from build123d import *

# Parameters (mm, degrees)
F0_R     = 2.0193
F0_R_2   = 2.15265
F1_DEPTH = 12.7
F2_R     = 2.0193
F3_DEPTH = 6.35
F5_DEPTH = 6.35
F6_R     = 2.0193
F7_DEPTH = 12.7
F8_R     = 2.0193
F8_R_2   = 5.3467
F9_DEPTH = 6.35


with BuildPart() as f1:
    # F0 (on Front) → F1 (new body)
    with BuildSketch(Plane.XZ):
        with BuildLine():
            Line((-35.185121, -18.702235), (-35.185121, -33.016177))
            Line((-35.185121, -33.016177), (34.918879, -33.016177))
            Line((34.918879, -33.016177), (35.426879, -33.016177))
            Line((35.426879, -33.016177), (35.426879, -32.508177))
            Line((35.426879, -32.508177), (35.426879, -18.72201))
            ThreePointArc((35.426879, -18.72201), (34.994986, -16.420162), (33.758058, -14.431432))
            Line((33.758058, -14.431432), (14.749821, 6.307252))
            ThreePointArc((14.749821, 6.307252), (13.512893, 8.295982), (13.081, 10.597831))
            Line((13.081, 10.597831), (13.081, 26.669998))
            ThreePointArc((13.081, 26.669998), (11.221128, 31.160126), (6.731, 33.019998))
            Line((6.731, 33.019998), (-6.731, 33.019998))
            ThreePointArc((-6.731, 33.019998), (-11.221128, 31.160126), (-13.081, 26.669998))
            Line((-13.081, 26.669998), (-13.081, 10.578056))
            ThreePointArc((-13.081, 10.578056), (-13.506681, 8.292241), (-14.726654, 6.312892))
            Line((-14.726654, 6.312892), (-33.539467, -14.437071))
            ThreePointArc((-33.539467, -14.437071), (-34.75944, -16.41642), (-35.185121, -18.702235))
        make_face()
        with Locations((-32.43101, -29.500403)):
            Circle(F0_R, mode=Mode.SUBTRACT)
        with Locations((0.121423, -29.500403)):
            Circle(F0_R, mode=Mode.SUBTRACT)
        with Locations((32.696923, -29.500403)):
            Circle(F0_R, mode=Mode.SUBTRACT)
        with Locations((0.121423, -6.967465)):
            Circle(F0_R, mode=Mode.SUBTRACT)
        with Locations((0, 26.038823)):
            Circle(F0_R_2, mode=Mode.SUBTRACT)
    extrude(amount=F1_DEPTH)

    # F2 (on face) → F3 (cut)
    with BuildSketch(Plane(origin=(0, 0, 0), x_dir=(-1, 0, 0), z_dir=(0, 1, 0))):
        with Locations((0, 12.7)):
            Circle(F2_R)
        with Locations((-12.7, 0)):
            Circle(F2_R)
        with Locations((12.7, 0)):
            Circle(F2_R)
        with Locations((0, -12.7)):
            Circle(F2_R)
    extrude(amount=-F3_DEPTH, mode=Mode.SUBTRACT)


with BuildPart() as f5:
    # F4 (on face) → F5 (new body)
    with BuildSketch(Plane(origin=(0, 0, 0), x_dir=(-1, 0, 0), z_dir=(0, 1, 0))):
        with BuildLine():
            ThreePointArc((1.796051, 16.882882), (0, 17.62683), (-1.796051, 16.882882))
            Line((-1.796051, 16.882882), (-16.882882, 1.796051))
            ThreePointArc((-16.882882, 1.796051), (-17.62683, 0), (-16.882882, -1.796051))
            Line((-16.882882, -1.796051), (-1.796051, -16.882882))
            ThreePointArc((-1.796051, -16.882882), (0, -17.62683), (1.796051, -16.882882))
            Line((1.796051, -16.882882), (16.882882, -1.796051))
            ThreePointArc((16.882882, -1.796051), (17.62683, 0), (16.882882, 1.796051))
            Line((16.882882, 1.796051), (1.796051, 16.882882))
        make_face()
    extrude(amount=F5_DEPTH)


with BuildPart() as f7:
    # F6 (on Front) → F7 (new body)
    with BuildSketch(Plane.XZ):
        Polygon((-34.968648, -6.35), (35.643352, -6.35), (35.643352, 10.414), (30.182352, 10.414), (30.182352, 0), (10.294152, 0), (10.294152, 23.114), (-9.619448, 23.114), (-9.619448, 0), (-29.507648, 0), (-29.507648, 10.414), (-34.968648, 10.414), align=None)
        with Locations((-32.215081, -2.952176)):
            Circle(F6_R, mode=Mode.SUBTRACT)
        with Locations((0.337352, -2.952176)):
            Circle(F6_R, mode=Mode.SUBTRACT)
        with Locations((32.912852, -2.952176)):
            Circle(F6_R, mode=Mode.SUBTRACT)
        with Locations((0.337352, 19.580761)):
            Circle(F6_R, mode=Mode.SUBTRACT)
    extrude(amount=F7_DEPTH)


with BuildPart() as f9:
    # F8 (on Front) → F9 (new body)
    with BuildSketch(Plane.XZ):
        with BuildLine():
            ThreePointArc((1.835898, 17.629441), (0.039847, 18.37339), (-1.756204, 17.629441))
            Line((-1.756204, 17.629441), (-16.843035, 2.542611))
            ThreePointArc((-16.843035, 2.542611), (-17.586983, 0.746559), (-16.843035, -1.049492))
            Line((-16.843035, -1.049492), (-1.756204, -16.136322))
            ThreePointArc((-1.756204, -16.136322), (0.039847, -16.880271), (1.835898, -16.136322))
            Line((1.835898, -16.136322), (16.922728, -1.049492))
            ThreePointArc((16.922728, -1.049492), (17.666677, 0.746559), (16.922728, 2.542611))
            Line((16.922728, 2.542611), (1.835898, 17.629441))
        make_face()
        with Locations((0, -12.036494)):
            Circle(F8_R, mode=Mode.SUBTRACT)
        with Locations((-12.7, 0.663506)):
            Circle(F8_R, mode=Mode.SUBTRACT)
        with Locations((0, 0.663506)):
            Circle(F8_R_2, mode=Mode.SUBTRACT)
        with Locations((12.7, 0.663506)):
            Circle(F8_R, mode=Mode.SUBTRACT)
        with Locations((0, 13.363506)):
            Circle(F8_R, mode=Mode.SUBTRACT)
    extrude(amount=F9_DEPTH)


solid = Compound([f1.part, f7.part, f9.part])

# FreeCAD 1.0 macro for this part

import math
import FreeCAD as App
import Part
import Sketcher

V = App.Vector
Q = App.Units.Quantity

doc = App.newDocument("Part")
body = doc.addObject("PartDesign::Body", "Body")

# Sketch on XZ plane
sketch1 = doc.addObject("Sketcher::SketchObject", "Sketch")
body.addObject(sketch1)
sketch1.AttachmentSupport = (doc.XZ_Plane, [""])
sketch1.MapMode = "FlatFace"
sketch1.addGeometry([
    Part.LineSegment(V(-35.185121, -18.702235, 0), V(-35.185121, -33.016177, 0)),  # 0
    Part.LineSegment(V(-35.185121, -33.016177, 0), V(35.426879, -33.016177, 0)),  # 1
    Part.LineSegment(V(35.426879, -33.016177, 0), V(35.426879, -18.72201, 0)),  # 2
    Part.ArcOfCircle(Part.Circle(V(29.076875, -18.722012, 0), V(0, 0, 1), 6.350004), math.radians(0.000017), math.radians(42.507093)),  # 3
    Part.LineSegment(V(33.758058, -14.431432, 0), V(14.749821, 6.307252, 0)),  # 4
    Part.ArcOfCircle(Part.Circle(V(19.431004, 10.597832, 0), V(0, 0, 1), 6.350004), math.radians(-179.999992), math.radians(-137.492907)),  # 5
    Part.LineSegment(V(13.081, 10.597831, 0), V(13.081, 26.669998, 0)),  # 6
    Part.ArcOfCircle(Part.Circle(V(6.731, 26.669998, 0), V(0, 0, 1), 6.35), math.radians(0.000002), math.radians(89.999998)),  # 7
    Part.LineSegment(V(6.731, 33.019998, 0), V(-6.731, 33.019998, 0)),  # 8
    Part.ArcOfCircle(Part.Circle(V(-6.731, 26.669998, 0), V(0, 0, 1), 6.35), math.radians(90.000002), math.radians(179.999998)),  # 9
    Part.LineSegment(V(-13.081, 26.669998, 0), V(-13.081, 10.578056, 0)),  # 10
    Part.ArcOfCircle(Part.Circle(V(-19.430991, 10.578053, 0), V(0, 0, 1), 6.349991), math.radians(-42.196851), math.radians(0.000027)),  # 11
    Part.LineSegment(V(-14.726654, 6.312892, 0), V(-33.539467, -14.437071, 0)),  # 12
    Part.ArcOfCircle(Part.Circle(V(-28.83513, -18.702232, 0), V(0, 0, 1), 6.349991), math.radians(137.803149), math.radians(180.000027)),  # 13
    Part.Circle(V(-32.43101, -29.500403, 0), V(0, 0, 1), 2.0193),  # 14
    Part.Circle(V(0.121423, -29.500403, 0), V(0, 0, 1), 2.0193),  # 15
    Part.Circle(V(0.121423, -6.967465, 0), V(0, 0, 1), 2.0193),  # 16
    Part.Circle(V(32.696923, -29.500403, 0), V(0, 0, 1), 2.0193),  # 17
    Part.Circle(V(0, 26.038823, 0), V(0, 0, 1), 2.15265),  # 18
], False)
sketch1.addConstraint([
    Sketcher.Constraint("Coincident", 0, 2, 1, 1),
    Sketcher.Constraint("Coincident", 1, 2, 2, 1),
    Sketcher.Constraint("Coincident", 2, 2, 3, 1),
    Sketcher.Constraint("Coincident", 3, 2, 4, 1),
    Sketcher.Constraint("Coincident", 4, 2, 5, 2),
    Sketcher.Constraint("Coincident", 5, 1, 6, 1),
    Sketcher.Constraint("Coincident", 6, 2, 7, 1),
    Sketcher.Constraint("Coincident", 7, 2, 8, 1),
    Sketcher.Constraint("Coincident", 8, 2, 9, 1),
    Sketcher.Constraint("Coincident", 9, 2, 10, 1),
    Sketcher.Constraint("Coincident", 10, 2, 11, 2),
    Sketcher.Constraint("Coincident", 11, 1, 12, 1),
    Sketcher.Constraint("Coincident", 12, 2, 13, 1),
    Sketcher.Constraint("Coincident", 13, 2, 0, 1),
    Sketcher.Constraint("Vertical", 0),
    Sketcher.Constraint("Horizontal", 1),
    Sketcher.Constraint("Vertical", 2),
    Sketcher.Constraint("Vertical", 6),
    Sketcher.Constraint("Horizontal", 8),
    Sketcher.Constraint("Vertical", 10),
    Sketcher.Constraint("PointOnObject", 18, 3, -2),
    Sketcher.Constraint("Radius", 3, Q("0.2500001 in")),
    Sketcher.Constraint("Radius", 5, Q("0.2500001 in")),
    Sketcher.Constraint("Radius", 7, Q("0.25 in")),
    Sketcher.Constraint("Radius", 9, Q("0.25 in")),
    Sketcher.Constraint("Diameter", 14, Q("0.159 in")),
    Sketcher.Constraint("Diameter", 15, Q("0.159 in")),
    Sketcher.Constraint("Diameter", 16, Q("0.159 in")),
    Sketcher.Constraint("Diameter", 17, Q("0.159 in")),
    Sketcher.Constraint("Diameter", 18, Q("0.1695 in")),
    Sketcher.Constraint("DistanceX", 1, 1, 1, 2, Q("2.78 in")),
    Sketcher.Constraint("DistanceX", 8, 2, 8, 1, Q("0.53 in")),
    Sketcher.Constraint("DistanceY", -1, 1, 7, 2, Q("1.2999999 in")),
    Sketcher.Constraint("DistanceY", -1, 1, 6, 2, Q("1.0499999 in")),
    Sketcher.Constraint("DistanceY", -1, 1, 9, 2, Q("1.0499999 in")),
    Sketcher.Constraint("DistanceX", 9, 3, 7, 3, Q("0.53 in")),
    Sketcher.Constraint("DistanceX", 7, 2, 6, 2, Q("0.25 in")),
    Sketcher.Constraint("DistanceX", -1, 1, 5, 3, Q("0.7650001 in")),
    Sketcher.Constraint("Radius", 11, 6.349991),
    Sketcher.Constraint("Radius", 13, 6.349991),
    Sketcher.Constraint("DistanceX", 15, 3, 17, 3, Q("1.2825 in")),
    Sketcher.Constraint("DistanceX", 16, 3, 17, 3, Q("1.2825 in")),
    Sketcher.Constraint("DistanceY", 0, 2, 0, 1, 14.313942),
    Sketcher.Constraint("DistanceY", 10, 2, 10, 1, 16.091942),
    Sketcher.Constraint("DistanceY", 14, 3, 9, 3, 56.170401),
    Sketcher.Constraint("DistanceY", 17, 3, 7, 3, 56.170401),
    Sketcher.Constraint("DistanceX", 16, 3, 4, 2, 14.628398),
    Sketcher.Constraint("Distance", 4, 28.131941),
    Sketcher.Constraint("Distance", 12, 28.008622),
    Sketcher.Constraint("DistanceY", 2, 1, 2, 2, 14.294167),
    Sketcher.Constraint("DistanceY", 6, 1, 6, 2, 16.072167),
    Sketcher.Constraint("DistanceY", 3, 3, -1, 1, 18.722012),
    Sketcher.Constraint("DistanceY", -1, 1, 5, 3, 10.597832),
    Sketcher.Constraint("DistanceX", 13, 3, -1, 1, 28.83513),
    Sketcher.Constraint("DistanceX", 14, 3, -1, 1, 32.43101),
    Sketcher.Constraint("DistanceY", 2, 2, -1, 1, 18.72201),
    Sketcher.Constraint("DistanceX", -1, 1, 4, 2, 14.749821),
    Sketcher.Constraint("DistanceY", 12, 2, -1, 1, 14.437071),
    Sketcher.Constraint("DistanceY", 11, 3, 5, 3, 0.019779),
    Sketcher.Constraint("DistanceY", 13, 3, 9, 3, 45.37223),
    Sketcher.Constraint("DistanceY", 15, 3, 3, 3, 10.778391),
    Sketcher.Constraint("DistanceY", 16, 3, 11, 3, 17.545518),
    Sketcher.Constraint("DistanceY", 5, 3, 18, 3, 15.440991),
])
pad1 = doc.addObject("PartDesign::Pad", "Pad")
body.addObject(pad1)
pad1.Profile = sketch1
pad1.Length = Q("0.5 in")

# Sketch on XZ plane
sketch2 = doc.addObject("Sketcher::SketchObject", "Sketch001")
body.addObject(sketch2)
sketch2.AttachmentSupport = (doc.XZ_Plane, [""])
sketch2.MapMode = "FlatFace"
sketch2.addGeometry([
    Part.Circle(V(0, 12.7, 0), V(0, 0, 1), 2),
    Part.Circle(V(12.7, 0, 0), V(0, 0, 1), 2),
    Part.Circle(V(-12.7, 0, 0), V(0, 0, 1), 2),
    Part.Circle(V(0, -12.7, 0), V(0, 0, 1), 2),
], False)
sketch2.addConstraint([
    Sketcher.Constraint("Equal", 0, 1),
    Sketcher.Constraint("Equal", 1, 2),
    Sketcher.Constraint("Equal", 2, 3),
    Sketcher.Constraint("Symmetric", 1, 3, 2, 3, -1, 1),
    Sketcher.Constraint("Symmetric", 0, 3, 3, 3, -1, 1),
    Sketcher.Constraint("PointOnObject", 0, 3, -2),
    Sketcher.Constraint("PointOnObject", 1, 3, -1),
    Sketcher.Constraint("Diameter", 0, Q("0.159 in")),
    Sketcher.Constraint("DistanceX", 2, 3, 1, 3, Q("1 in")),
    Sketcher.Constraint("DistanceY", 3, 3, 0, 3, Q("1 in")),
])
pocket1 = doc.addObject("PartDesign::Pocket", "Pocket")
body.addObject(pocket1)
pocket1.Profile = sketch2
pocket1.Length = Q("0.25 in")
pocket1.Reversed = True
body2 = doc.addObject("PartDesign::Body", "Body001")

# Sketch on XZ plane
sketch3 = doc.addObject("Sketcher::SketchObject", "Sketch002")
body2.addObject(sketch3)
sketch3.AttachmentSupport = (doc.getObject("XZ_Plane001"), [""])
sketch3.MapMode = "FlatFace"
sketch3.addGeometry([
    Part.ArcOfCircle(Part.Circle(V(0, 15.1, 0), V(0, 0, 1), 2.5), math.radians(45), math.radians(135)),  # 0
    Part.LineSegment(V(1.8, 16.9, 0), V(16.9, 1.8, 0)),  # 1
    Part.ArcOfCircle(Part.Circle(V(15.1, 0, 0), V(0, 0, 1), 2.5), math.radians(-45), math.radians(45)),  # 2
    Part.LineSegment(V(16.9, -1.8, 0), V(1.8, -16.9, 0)),  # 3
    Part.ArcOfCircle(Part.Circle(V(0, -15.1, 0), V(0, 0, 1), 2.5), math.radians(-135), math.radians(-45)),  # 4
    Part.LineSegment(V(-1.8, -16.9, 0), V(-16.9, -1.8, 0)),  # 5
    Part.ArcOfCircle(Part.Circle(V(-15.1, 0, 0), V(0, 0, 1), 2.5), math.radians(135), math.radians(225)),  # 6
    Part.LineSegment(V(-16.9, 1.8, 0), V(-1.8, 16.9, 0)),  # 7
], False)
sketch3.addConstraint([
    Sketcher.Constraint("Tangent", 0, 1, 1, 1),
    Sketcher.Constraint("Tangent", 1, 2, 2, 2),
    Sketcher.Constraint("Tangent", 2, 1, 3, 1),
    Sketcher.Constraint("Tangent", 3, 2, 4, 2),
    Sketcher.Constraint("Tangent", 4, 1, 5, 1),
    Sketcher.Constraint("Tangent", 5, 2, 6, 2),
    Sketcher.Constraint("Tangent", 6, 1, 7, 1),
    Sketcher.Constraint("Tangent", 7, 2, 0, 2),
    Sketcher.Constraint("Equal", 0, 2),
    Sketcher.Constraint("Equal", 2, 4),
    Sketcher.Constraint("Equal", 4, 6),
    Sketcher.Constraint("Symmetric", 0, 3, 4, 3, -1, 1),
    Sketcher.Constraint("Symmetric", 2, 3, 6, 3, -1, 1),
    Sketcher.Constraint("Symmetric", 3, 2, 4, 1, -2),
    Sketcher.Constraint("Perpendicular", 1, 3),
    Sketcher.Constraint("Radius", 0, Q("0.1000001 in")),
    Sketcher.Constraint("Distance", 1, Q("0.84 in")),
])
pad2 = doc.addObject("PartDesign::Pad", "Pad001")
body2.addObject(pad2)
pad2.Profile = sketch3
pad2.Length = Q("0.25 in")
pad2.Reversed = True
body3 = doc.addObject("PartDesign::Body", "Body002")

# Sketch on XZ plane
sketch4 = doc.addObject("Sketcher::SketchObject", "Sketch003")
body3.addObject(sketch4)
sketch4.AttachmentSupport = (doc.getObject("XZ_Plane002"), [""])
sketch4.MapMode = "FlatFace"
sketch4.addGeometry([
    Part.LineSegment(V(-35, -6.3, 0), V(35.6, -6.3, 0)),  # 0
    Part.LineSegment(V(35.6, -6.3, 0), V(35.6, 10.4, 0)),  # 1
    Part.LineSegment(V(35.6, 10.4, 0), V(30.2, 10.4, 0)),  # 2
    Part.LineSegment(V(30.2, 10.4, 0), V(30.2, 0, 0)),  # 3
    Part.LineSegment(V(30.2, 0, 0), V(10.3, 0, 0)),  # 4
    Part.LineSegment(V(10.3, 0, 0), V(10.3, 23.1, 0)),  # 5
    Part.LineSegment(V(10.3, 23.1, 0), V(-9.6, 23.1, 0)),  # 6
    Part.LineSegment(V(-9.6, 23.1, 0), V(-9.6, 0, 0)),  # 7
    Part.LineSegment(V(-9.6, 0, 0), V(-29.5, 0, 0)),  # 8
    Part.LineSegment(V(-29.5, 0, 0), V(-29.5, 10.4, 0)),  # 9
    Part.LineSegment(V(-29.5, 10.4, 0), V(-35, 10.4, 0)),  # 10
    Part.LineSegment(V(-35, 10.4, 0), V(-35, -6.3, 0)),  # 11
    Part.Circle(V(-32.2, -3, 0), V(0, 0, 1), 2),  # 12
    Part.Circle(V(0.3, -3, 0), V(0, 0, 1), 2),  # 13
    Part.Circle(V(32.9, -3, 0), V(0, 0, 1), 2),  # 14
    Part.Circle(V(0.3, 19.6, 0), V(0, 0, 1), 2),  # 15
], False)
sketch4.addConstraint([
    Sketcher.Constraint("Coincident", 0, 2, 1, 1),
    Sketcher.Constraint("Coincident", 1, 2, 2, 1),
    Sketcher.Constraint("Coincident", 2, 2, 3, 1),
    Sketcher.Constraint("Coincident", 3, 2, 4, 1),
    Sketcher.Constraint("Coincident", 4, 2, 5, 1),
    Sketcher.Constraint("Coincident", 5, 2, 6, 1),
    Sketcher.Constraint("Coincident", 6, 2, 7, 1),
    Sketcher.Constraint("Coincident", 7, 2, 8, 1),
    Sketcher.Constraint("Coincident", 8, 2, 9, 1),
    Sketcher.Constraint("Coincident", 9, 2, 10, 1),
    Sketcher.Constraint("Coincident", 10, 2, 11, 1),
    Sketcher.Constraint("Coincident", 11, 2, 0, 1),
    Sketcher.Constraint("Horizontal", 0),
    Sketcher.Constraint("Vertical", 1),
    Sketcher.Constraint("Horizontal", 2),
    Sketcher.Constraint("Vertical", 3),
    Sketcher.Constraint("Horizontal", 4),
    Sketcher.Constraint("Vertical", 5),
    Sketcher.Constraint("Horizontal", 6),
    Sketcher.Constraint("Vertical", 7),
    Sketcher.Constraint("Horizontal", 8),
    Sketcher.Constraint("Vertical", 9),
    Sketcher.Constraint("Horizontal", 10),
    Sketcher.Constraint("Vertical", 11),
    Sketcher.Constraint("Equal", 12, 13),
    Sketcher.Constraint("Equal", 13, 14),
    Sketcher.Constraint("Equal", 14, 15),
    Sketcher.Constraint("PointOnObject", 3, 2, -1),
    Sketcher.Constraint("PointOnObject", 7, 2, -1),
    Sketcher.Constraint("Horizontal", 12, 3, 13, 3),
    Sketcher.Constraint("Horizontal", 13, 3, 14, 3),
    Sketcher.Constraint("Horizontal", 2, 2, 9, 2),
    Sketcher.Constraint("Vertical", 13, 3, 15, 3),
    Sketcher.Constraint("Equal", 4, 8),
    Sketcher.Constraint("Equal", 2, 10),
    Sketcher.Constraint("Diameter", 12, Q("0.159 in")),
    Sketcher.Constraint("DistanceX", 0, 1, 0, 2, Q("2.78 in")),
    Sketcher.Constraint("DistanceY", 1, 1, 1, 2, Q("0.66 in")),
    Sketcher.Constraint("DistanceY", 3, 2, 3, 1, Q("0.41 in")),
    Sketcher.Constraint("DistanceY", 5, 1, 5, 2, Q("0.91 in")),
    Sketcher.Constraint("DistanceX", 2, 2, 2, 1, Q("0.215 in")),
    Sketcher.Constraint("DistanceX", 4, 2, 4, 1, Q("0.783 in")),
    Sketcher.Constraint("DistanceX", 13, 3, 0, 2, Q("1.39 in")),
    Sketcher.Constraint("DistanceX", 13, 3, 14, 3, Q("1.2825 in")),
    Sketcher.Constraint("DistanceX", 12, 3, -1, 1, 32.215081),
    Sketcher.Constraint("DistanceY", -1, 1, 15, 3, 19.580761),
    Sketcher.Constraint("DistanceX", 10, 2, -1, 1, 34.968648),
    Sketcher.Constraint("DistanceY", 12, 3, -1, 1, 2.952176),
])
pad3 = doc.addObject("PartDesign::Pad", "Pad002")
body3.addObject(pad3)
pad3.Profile = sketch4
pad3.Length = Q("0.5 in")
body4 = doc.addObject("PartDesign::Body", "Body003")

# Sketch on XZ plane
sketch5 = doc.addObject("Sketcher::SketchObject", "Sketch004")
body4.addObject(sketch5)
sketch5.AttachmentSupport = (doc.getObject("XZ_Plane003"), [""])
sketch5.MapMode = "FlatFace"
sketch5.addGeometry([
    Part.ArcOfCircle(Part.Circle(V(0, 15.8, 0), V(0, 0, 1), 2.5), math.radians(45), math.radians(135)),  # 0
    Part.LineSegment(V(-1.8, 17.6, 0), V(-16.8, 2.5, 0)),  # 1
    Part.ArcOfCircle(Part.Circle(V(-15, 0.7, 0), V(0, 0, 1), 2.5), math.radians(135), math.radians(225)),  # 2
    Part.LineSegment(V(-16.8, -1, 0), V(-1.8, -16.1, 0)),  # 3
    Part.ArcOfCircle(Part.Circle(V(0, -14.3, 0), V(0, 0, 1), 2.5), math.radians(-135), math.radians(-45)),  # 4
    Part.LineSegment(V(1.8, -16.1, 0), V(16.9, -1, 0)),  # 5
    Part.ArcOfCircle(Part.Circle(V(15.1, 0.7, 0), V(0, 0, 1), 2.5), math.radians(-45), math.radians(45)),  # 6
    Part.LineSegment(V(16.9, 2.5, 0), V(1.8, 17.6, 0)),  # 7
    Part.Circle(V(0, -12, 0), V(0, 0, 1), 2),  # 8
    Part.Circle(V(-12.7, 0.7, 0), V(0, 0, 1), 2),  # 9
    Part.Circle(V(0, 0.7, 0), V(0, 0, 1), 5.3),  # 10
    Part.Circle(V(12.7, 0.7, 0), V(0, 0, 1), 2),  # 11
    Part.Circle(V(0, 13.4, 0), V(0, 0, 1), 2),  # 12
], False)
sketch5.addConstraint([
    Sketcher.Constraint("Tangent", 0, 2, 1, 1),
    Sketcher.Constraint("Tangent", 1, 2, 2, 1),
    Sketcher.Constraint("Tangent", 2, 2, 3, 1),
    Sketcher.Constraint("Tangent", 3, 2, 4, 1),
    Sketcher.Constraint("Tangent", 4, 2, 5, 1),
    Sketcher.Constraint("Tangent", 5, 2, 6, 1),
    Sketcher.Constraint("Tangent", 6, 2, 7, 1),
    Sketcher.Constraint("Tangent", 7, 2, 0, 1),
    Sketcher.Constraint("Equal", 0, 4),
    Sketcher.Constraint("Equal", 4, 6),
    Sketcher.Constraint("Equal", 8, 9),
    Sketcher.Constraint("Equal", 9, 11),
    Sketcher.Constraint("Equal", 11, 12),
    Sketcher.Constraint("Symmetric", 9, 3, 11, 3, -2),
    Sketcher.Constraint("PointOnObject", 8, 3, -2),
    Sketcher.Constraint("PointOnObject", 10, 3, -2),
    Sketcher.Constraint("PointOnObject", 12, 3, -2),
    Sketcher.Constraint("Perpendicular", 1, 3),
    Sketcher.Constraint("Perpendicular", 3, 5),
    Sketcher.Constraint("Perpendicular", 5, 7),
    Sketcher.Constraint("Horizontal", 2, 3, 6, 3),
    Sketcher.Constraint("Horizontal", 9, 3, 10, 3),
    Sketcher.Constraint("Horizontal", 3, 2, 4, 2),
    Sketcher.Constraint("Horizontal", 2, 2, 5, 2),
    Sketcher.Constraint("Radius", 0, Q("0.1 in")),
    Sketcher.Constraint("Diameter", 8, Q("0.159 in")),
    Sketcher.Constraint("Diameter", 10, Q("0.421 in")),
    Sketcher.Constraint("DistanceX", 9, 3, -1, 1, Q("0.5 in")),
    Sketcher.Constraint("DistanceY", 8, 3, 9, 3, Q("0.5 in")),
    Sketcher.Constraint("DistanceY", 10, 3, 12, 3, Q("0.5 in")),
    Sketcher.Constraint("Distance", 1, Q("0.84 in")),
    Sketcher.Constraint("DistanceY", 4, 3, 8, 3, Q("0.0906999 in")),
    Sketcher.Constraint("DistanceX", 7, 2, 11, 3, 10.864102),
    Sketcher.Constraint("DistanceY", -1, 1, 0, 3, 15.833391),
])
pad4 = doc.addObject("PartDesign::Pad", "Pad003")
body4.addObject(pad4)
pad4.Profile = sketch5
pad4.Length = Q("0.25 in")
body2.Visibility = False

doc.recompute()
